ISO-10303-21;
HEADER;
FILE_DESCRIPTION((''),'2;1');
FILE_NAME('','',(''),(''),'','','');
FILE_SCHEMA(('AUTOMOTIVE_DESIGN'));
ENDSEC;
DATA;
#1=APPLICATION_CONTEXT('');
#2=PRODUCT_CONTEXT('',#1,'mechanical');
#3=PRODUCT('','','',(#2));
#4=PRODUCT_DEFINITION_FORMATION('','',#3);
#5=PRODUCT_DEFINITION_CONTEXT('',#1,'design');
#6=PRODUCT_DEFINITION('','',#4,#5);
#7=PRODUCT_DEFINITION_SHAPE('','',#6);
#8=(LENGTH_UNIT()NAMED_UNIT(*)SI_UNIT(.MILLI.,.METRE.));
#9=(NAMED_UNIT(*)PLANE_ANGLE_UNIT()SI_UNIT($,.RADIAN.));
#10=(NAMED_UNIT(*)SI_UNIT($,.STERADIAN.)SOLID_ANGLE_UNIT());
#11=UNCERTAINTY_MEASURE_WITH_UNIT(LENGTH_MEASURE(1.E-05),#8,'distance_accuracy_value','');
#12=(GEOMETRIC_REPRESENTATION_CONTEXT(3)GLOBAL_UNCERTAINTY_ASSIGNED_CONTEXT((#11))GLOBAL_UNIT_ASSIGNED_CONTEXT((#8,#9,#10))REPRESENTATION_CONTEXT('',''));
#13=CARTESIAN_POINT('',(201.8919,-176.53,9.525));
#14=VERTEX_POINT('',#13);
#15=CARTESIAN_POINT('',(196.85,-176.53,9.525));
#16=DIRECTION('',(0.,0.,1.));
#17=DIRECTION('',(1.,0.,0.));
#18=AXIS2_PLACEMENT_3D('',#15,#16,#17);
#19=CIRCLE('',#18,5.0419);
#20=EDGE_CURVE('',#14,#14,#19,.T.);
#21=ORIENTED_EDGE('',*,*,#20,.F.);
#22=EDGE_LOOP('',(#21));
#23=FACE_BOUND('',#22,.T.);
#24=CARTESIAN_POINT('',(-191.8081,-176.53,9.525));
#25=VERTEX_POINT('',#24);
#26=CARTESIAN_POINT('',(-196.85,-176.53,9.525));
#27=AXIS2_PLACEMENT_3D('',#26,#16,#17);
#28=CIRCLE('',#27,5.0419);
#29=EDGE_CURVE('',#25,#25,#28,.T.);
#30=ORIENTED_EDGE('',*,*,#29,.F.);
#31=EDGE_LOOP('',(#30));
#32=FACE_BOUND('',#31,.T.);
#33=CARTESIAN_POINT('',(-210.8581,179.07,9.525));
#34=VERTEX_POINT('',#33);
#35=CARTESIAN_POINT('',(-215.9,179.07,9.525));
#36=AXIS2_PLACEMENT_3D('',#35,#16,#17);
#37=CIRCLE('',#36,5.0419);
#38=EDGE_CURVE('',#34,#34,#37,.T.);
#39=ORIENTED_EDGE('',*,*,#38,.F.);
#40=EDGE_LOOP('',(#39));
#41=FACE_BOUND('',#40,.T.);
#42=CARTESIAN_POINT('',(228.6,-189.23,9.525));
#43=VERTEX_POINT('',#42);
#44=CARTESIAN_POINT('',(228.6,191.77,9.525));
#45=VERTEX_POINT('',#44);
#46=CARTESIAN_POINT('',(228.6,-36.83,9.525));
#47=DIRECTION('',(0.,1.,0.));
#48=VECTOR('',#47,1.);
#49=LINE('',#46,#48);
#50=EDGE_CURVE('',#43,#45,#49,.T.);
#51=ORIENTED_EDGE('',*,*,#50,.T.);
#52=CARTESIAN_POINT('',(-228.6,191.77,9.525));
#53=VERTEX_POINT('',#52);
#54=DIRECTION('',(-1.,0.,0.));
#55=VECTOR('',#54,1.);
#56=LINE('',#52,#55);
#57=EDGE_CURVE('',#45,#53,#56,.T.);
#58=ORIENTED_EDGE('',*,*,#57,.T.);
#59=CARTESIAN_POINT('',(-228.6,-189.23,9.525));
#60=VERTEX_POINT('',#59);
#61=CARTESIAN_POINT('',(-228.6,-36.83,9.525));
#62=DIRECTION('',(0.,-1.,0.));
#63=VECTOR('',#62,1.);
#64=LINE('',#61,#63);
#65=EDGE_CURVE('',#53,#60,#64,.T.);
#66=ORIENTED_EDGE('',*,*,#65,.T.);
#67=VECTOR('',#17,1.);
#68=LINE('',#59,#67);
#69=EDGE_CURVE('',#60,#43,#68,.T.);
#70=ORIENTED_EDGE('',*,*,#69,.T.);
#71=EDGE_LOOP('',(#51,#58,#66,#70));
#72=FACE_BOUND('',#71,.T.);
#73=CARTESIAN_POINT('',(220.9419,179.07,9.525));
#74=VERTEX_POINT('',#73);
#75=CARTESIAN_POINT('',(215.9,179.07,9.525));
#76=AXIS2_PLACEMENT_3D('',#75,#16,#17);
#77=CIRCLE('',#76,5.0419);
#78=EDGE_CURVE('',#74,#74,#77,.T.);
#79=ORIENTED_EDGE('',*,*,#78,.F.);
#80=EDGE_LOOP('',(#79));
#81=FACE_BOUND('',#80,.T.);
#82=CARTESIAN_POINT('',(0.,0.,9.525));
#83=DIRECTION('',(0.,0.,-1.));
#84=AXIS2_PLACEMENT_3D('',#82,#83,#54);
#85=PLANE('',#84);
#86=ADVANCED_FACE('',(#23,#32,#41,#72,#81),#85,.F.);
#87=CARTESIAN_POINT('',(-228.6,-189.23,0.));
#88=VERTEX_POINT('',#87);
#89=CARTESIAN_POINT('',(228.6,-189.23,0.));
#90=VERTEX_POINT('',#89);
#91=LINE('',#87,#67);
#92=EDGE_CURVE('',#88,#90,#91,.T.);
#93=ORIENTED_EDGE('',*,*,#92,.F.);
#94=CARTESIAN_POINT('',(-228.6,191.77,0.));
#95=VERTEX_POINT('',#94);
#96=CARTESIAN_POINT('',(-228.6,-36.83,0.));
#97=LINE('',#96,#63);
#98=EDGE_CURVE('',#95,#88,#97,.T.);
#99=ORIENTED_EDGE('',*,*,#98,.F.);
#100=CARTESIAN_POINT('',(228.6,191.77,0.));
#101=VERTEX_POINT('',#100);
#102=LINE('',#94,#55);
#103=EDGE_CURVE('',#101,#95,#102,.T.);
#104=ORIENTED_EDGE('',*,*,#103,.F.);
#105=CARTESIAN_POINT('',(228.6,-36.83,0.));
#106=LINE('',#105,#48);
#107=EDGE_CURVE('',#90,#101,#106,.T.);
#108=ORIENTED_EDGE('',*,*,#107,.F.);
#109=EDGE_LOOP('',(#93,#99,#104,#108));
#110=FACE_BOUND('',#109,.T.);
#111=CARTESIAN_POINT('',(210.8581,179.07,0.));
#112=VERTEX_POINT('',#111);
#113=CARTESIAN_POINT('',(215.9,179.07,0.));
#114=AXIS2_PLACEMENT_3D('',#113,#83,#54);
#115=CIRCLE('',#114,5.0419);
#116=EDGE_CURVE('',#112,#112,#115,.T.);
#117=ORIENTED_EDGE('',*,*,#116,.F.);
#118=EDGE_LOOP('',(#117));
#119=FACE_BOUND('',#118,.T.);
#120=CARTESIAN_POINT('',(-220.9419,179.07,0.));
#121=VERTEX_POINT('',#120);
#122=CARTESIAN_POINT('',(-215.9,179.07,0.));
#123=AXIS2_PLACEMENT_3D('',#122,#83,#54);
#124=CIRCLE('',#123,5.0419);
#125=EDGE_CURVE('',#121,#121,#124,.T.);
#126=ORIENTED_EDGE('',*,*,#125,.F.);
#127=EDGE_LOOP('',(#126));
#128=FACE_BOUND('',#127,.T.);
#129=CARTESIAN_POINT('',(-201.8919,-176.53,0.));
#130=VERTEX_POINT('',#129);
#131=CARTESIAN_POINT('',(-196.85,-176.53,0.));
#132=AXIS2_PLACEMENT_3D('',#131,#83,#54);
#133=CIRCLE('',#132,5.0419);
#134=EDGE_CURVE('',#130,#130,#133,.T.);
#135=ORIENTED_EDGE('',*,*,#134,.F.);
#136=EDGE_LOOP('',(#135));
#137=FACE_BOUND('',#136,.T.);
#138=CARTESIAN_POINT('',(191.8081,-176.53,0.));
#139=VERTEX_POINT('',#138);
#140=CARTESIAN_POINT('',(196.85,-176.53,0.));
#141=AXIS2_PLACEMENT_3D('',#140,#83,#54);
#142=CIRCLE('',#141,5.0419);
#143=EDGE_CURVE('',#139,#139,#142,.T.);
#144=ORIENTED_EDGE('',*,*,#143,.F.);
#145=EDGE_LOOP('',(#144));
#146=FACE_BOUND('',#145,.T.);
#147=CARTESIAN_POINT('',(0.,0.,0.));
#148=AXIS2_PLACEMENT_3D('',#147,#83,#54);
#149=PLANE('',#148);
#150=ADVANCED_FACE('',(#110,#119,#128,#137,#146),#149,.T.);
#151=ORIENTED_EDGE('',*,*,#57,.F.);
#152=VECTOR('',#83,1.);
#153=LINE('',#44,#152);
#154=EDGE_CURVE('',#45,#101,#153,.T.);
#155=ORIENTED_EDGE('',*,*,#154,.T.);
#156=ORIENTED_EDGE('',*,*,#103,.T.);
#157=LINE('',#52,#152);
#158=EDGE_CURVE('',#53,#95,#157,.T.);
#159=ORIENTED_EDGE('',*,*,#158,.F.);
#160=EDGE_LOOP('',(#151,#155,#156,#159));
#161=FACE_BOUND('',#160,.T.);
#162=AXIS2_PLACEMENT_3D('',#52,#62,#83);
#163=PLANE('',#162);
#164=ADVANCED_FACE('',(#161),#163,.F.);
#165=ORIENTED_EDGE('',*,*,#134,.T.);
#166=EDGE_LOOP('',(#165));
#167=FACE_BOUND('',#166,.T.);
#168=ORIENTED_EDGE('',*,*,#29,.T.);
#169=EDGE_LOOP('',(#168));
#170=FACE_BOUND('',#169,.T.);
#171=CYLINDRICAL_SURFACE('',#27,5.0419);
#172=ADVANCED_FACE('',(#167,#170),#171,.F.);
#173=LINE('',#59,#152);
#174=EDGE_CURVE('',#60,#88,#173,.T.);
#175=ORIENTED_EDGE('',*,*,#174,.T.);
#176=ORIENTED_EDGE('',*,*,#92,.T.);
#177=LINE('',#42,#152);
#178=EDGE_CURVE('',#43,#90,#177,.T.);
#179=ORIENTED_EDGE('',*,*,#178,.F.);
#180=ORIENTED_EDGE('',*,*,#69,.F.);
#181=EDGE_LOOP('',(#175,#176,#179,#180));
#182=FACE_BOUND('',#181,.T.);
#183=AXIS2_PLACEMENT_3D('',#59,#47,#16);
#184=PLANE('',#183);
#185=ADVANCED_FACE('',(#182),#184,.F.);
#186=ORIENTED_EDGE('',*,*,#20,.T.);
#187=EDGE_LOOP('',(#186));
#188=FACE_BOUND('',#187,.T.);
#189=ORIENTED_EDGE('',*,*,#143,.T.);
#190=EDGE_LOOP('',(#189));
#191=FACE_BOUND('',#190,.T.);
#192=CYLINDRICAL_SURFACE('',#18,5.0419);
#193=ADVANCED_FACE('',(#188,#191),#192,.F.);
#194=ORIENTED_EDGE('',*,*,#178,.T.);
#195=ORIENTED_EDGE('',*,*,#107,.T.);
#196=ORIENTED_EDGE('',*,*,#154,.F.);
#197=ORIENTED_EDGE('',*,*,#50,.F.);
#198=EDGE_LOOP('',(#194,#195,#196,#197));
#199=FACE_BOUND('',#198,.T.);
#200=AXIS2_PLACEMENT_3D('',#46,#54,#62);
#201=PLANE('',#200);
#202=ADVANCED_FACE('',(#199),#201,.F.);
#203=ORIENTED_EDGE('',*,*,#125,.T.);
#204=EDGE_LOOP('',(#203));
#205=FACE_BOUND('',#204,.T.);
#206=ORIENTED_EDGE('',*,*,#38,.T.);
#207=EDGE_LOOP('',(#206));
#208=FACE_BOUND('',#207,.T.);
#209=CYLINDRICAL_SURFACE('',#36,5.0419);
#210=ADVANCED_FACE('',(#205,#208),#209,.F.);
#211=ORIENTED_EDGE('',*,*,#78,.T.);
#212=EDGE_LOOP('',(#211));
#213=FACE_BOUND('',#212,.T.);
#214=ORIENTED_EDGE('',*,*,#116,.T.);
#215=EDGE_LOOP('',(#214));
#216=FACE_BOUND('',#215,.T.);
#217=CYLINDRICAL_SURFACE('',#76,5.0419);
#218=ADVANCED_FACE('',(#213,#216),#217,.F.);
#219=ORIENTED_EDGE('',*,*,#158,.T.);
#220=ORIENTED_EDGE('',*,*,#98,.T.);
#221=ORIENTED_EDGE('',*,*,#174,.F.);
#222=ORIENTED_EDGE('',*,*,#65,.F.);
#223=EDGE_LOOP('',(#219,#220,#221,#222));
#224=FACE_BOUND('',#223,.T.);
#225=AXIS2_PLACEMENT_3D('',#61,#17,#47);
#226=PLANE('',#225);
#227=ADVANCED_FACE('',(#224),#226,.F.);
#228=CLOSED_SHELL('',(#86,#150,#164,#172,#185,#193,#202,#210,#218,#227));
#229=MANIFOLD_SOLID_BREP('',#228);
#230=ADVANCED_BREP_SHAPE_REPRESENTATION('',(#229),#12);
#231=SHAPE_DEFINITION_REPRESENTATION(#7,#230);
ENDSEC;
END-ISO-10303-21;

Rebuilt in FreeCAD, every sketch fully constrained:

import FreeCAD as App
import Part
import Sketcher
Q = App.Units.Quantity

doc = App.newDocument("Part")
body = doc.addObject("PartDesign::Body", "Body")

# Sketch on XY plane
sketch1 = body.newObject("Sketcher::SketchObject", "Sketch")
sketch1.AttachmentSupport = (doc.getObject("XY_Plane"), [""])
sketch1.MapMode = "FlatFace"
sketch1.addGeometry(Part.LineSegment(App.Vector(-229, -189, 0), App.Vector(229, -189, 0)), False)
sketch1.addGeometry(Part.LineSegment(App.Vector(229, -189, 0), App.Vector(229, 192, 0)), False)
sketch1.addGeometry(Part.LineSegment(App.Vector(229, 192, 0), App.Vector(-229, 192, 0)), False)
sketch1.addGeometry(Part.LineSegment(App.Vector(-229, 192, 0), App.Vector(-229, -189, 0)), False)
sketch1.addConstraint(Sketcher.Constraint("Coincident", 0, 2, 1, 1))
sketch1.addConstraint(Sketcher.Constraint("Coincident", 1, 2, 2, 1))
sketch1.addConstraint(Sketcher.Constraint("Coincident", 2, 2, 3, 1))
sketch1.addConstraint(Sketcher.Constraint("Coincident", 3, 2, 0, 1))
sketch1.addConstraint(Sketcher.Constraint("Horizontal", 0))
sketch1.addConstraint(Sketcher.Constraint("Vertical", 1))
sketch1.addConstraint(Sketcher.Constraint("Horizontal", 2))
sketch1.addConstraint(Sketcher.Constraint("Vertical", 3))
sketch1.addConstraint(Sketcher.Constraint("DistanceX", 0, 1, 0, 2, Q("18 in")))
sketch1.addConstraint(Sketcher.Constraint("DistanceY", 1, 1, 1, 2, Q("15 in")))
sketch1.addConstraint(Sketcher.Constraint("DistanceX", -1, 1, 0, 2, Q("9 in")))
sketch1.addConstraint(Sketcher.Constraint("DistanceY", 0, 2, -1, 1, Q("7.45 in")))
pad1 = body.newObject("PartDesign::Pad", "Pad")
pad1.Profile = sketch1
pad1.Length = Q("0.375 in")

# Sketch on XY plane
sketch2 = body.newObject("Sketcher::SketchObject", "Sketch001")
sketch2.AttachmentSupport = (doc.getObject("XY_Plane"), [""])
sketch2.MapMode = "FlatFace"
sketch2.AttachmentOffset = App.Placement(App.Vector(0, 0, 0.375 * 25.4), App.Rotation())
sketch2.addGeometry(Part.Circle(App.Vector(-216, 179, 0), App.Vector(0, 0, 1), 5), False)
sketch2.addGeometry(Part.Circle(App.Vector(216, 179, 0), App.Vector(0, 0, 1), 5), False)
sketch2.addGeometry(Part.Circle(App.Vector(197, -177, 0), App.Vector(0, 0, 1), 5), False)
sketch2.addGeometry(Part.Circle(App.Vector(-197, -177, 0), App.Vector(0, 0, 1), 5), False)
sketch2.addConstraint(Sketcher.Constraint("Equal", 0, 1))
sketch2.addConstraint(Sketcher.Constraint("Equal", 1, 2))
sketch2.addConstraint(Sketcher.Constraint("Equal", 2, 3))
sketch2.addConstraint(Sketcher.Constraint("Symmetric", 0, 3, 1, 3, -2))
sketch2.addConstraint(Sketcher.Constraint("Symmetric", 2, 3, 3, 3, -2))
sketch2.addConstraint(Sketcher.Constraint("Diameter", 0, Q("0.397 in")))
sketch2.addConstraint(Sketcher.Constraint("DistanceX", 0, 3, 1, 3, Q("17 in")))
sketch2.addConstraint(Sketcher.Constraint("DistanceY", 2, 3, 1, 3, Q("14 in")))
sketch2.addConstraint(Sketcher.Constraint("DistanceX", 3, 3, 2, 3, Q("15.5 in")))
sketch2.addConstraint(Sketcher.Constraint("DistanceY", -1, 1, 0, 3, Q("7.05 in")))
doc.recompute()
hole = body.newObject("PartDesign::Hole", "Hole")
hole.Profile = sketch2
hole.ThreadType = "None"
hole.Diameter = Q("0.397 in")
hole.DepthType = "Dimension"
hole.Depth = Q("1 in")
hole.DrillPoint = "Angled"
hole.DrillPointAngle = 118

doc.recompute()
